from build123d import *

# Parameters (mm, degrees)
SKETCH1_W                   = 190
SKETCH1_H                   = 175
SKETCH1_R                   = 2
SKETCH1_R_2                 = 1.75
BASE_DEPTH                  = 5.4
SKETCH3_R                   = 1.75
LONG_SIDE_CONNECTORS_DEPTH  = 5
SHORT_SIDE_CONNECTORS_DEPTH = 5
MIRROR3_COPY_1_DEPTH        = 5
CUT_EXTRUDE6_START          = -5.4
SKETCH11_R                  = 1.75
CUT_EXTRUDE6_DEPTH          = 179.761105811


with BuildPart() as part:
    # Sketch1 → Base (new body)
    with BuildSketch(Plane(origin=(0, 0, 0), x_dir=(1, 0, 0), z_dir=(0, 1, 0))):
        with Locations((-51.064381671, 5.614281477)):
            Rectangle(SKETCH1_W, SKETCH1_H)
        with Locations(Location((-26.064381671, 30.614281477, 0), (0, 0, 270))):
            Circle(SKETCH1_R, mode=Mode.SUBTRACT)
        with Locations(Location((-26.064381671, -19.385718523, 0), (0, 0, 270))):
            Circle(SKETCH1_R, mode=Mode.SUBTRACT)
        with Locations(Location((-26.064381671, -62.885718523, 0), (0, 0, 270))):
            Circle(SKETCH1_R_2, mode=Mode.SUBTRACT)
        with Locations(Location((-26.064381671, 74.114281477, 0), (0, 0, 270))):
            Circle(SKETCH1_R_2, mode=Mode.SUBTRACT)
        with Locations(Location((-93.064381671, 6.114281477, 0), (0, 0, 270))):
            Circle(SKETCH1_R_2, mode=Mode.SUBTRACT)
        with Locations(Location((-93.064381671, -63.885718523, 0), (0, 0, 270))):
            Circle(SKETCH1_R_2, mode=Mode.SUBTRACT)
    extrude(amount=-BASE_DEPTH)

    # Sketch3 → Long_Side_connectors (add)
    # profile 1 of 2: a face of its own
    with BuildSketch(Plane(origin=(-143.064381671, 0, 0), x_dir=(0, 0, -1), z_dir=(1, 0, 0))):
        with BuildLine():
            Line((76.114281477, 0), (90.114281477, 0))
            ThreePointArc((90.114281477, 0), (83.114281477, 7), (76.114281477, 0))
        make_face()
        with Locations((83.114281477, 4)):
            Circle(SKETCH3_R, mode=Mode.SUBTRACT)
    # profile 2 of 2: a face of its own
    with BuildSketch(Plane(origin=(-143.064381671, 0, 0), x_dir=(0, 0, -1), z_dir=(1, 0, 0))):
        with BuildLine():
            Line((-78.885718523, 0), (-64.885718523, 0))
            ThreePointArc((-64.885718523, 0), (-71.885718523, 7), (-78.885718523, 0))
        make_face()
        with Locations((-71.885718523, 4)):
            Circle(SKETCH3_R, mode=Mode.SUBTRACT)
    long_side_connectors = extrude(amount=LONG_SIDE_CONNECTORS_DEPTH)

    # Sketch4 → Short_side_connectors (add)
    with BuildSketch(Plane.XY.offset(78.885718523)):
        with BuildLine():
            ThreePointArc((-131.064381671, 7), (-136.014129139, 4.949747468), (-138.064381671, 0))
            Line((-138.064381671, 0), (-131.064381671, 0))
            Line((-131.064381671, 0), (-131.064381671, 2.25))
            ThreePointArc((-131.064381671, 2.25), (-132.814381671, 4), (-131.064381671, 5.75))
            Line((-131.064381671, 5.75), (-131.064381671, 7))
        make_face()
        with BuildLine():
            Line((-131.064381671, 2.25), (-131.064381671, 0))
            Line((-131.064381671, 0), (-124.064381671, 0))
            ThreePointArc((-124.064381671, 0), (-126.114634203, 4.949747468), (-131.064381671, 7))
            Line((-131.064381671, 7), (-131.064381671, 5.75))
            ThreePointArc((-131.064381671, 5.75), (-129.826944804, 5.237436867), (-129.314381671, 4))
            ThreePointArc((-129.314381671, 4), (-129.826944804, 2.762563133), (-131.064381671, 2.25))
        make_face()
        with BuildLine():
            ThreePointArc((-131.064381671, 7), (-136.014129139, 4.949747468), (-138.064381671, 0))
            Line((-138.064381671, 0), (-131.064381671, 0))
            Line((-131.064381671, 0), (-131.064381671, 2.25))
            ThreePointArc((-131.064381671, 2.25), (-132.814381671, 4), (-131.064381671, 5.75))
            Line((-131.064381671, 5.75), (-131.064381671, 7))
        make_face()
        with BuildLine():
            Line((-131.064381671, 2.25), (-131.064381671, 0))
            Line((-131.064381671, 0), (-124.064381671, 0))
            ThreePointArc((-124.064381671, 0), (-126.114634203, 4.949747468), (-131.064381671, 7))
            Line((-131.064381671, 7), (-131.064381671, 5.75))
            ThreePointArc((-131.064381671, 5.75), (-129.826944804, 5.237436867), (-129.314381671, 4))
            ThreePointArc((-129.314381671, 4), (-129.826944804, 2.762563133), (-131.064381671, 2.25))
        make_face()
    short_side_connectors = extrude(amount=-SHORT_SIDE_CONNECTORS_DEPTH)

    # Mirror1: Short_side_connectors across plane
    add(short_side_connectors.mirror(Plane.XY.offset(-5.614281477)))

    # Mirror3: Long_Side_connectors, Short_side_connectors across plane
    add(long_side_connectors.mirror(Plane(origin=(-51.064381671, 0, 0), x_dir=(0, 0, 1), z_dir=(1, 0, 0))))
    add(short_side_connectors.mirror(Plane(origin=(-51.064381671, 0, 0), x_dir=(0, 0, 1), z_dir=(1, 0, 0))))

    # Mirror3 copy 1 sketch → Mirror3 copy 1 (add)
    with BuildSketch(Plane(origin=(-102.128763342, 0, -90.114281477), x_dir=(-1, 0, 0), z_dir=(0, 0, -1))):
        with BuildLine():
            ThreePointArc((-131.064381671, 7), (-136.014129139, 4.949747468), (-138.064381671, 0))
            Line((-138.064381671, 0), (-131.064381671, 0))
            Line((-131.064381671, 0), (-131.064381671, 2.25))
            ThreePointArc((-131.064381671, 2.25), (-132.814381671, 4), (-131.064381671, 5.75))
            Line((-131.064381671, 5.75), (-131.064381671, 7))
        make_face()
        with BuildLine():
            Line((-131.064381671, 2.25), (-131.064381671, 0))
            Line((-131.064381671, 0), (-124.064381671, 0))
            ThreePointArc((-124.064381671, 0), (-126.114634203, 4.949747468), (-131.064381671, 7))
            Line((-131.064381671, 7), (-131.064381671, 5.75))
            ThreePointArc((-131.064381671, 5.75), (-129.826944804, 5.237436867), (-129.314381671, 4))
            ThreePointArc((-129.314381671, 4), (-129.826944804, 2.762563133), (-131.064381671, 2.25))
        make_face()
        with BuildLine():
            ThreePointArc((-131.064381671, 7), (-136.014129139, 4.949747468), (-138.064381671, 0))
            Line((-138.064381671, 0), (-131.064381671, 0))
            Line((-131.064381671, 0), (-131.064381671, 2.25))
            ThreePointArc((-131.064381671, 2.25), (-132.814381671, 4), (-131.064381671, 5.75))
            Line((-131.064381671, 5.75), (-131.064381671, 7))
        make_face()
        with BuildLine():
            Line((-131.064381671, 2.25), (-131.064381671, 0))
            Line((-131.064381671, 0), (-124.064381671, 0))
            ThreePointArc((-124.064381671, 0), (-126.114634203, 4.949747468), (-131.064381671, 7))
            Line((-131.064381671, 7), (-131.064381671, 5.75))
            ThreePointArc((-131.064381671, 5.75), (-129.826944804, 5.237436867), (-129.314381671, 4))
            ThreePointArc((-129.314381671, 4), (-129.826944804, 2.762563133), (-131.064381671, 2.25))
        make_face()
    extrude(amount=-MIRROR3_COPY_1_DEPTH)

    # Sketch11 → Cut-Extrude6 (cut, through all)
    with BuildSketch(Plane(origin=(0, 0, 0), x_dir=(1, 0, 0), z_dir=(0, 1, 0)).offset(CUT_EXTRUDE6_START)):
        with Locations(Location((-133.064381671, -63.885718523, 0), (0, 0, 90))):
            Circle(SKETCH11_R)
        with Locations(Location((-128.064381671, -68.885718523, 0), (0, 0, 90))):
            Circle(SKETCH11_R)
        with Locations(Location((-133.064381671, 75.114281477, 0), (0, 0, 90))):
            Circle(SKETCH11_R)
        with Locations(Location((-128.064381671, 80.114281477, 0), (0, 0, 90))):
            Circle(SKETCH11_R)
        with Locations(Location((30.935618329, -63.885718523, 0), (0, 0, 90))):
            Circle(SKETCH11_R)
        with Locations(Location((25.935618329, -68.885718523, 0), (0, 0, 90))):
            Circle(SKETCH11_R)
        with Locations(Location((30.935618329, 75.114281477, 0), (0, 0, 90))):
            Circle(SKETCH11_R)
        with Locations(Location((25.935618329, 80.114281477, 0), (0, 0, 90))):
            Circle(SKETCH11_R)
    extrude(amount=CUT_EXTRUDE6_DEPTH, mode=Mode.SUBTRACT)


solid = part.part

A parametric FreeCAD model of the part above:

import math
import FreeCAD as App
import Part
import Sketcher
from FreeCAD import Vector
Q = App.Units.Quantity

doc = App.newDocument("Part")
params = doc.addObject("Spreadsheet::Sheet", "Params")
for row, (alias, value) in enumerate([
    ("sketch1_diameter", "4 mm"),
    ("sketch1_diameter2", "3.5 mm"),
    ("sketch1_width", "190 mm"),
    ("sketch1_height", "175 mm"),
    ("pad1_length", "5.4 mm"),
    ("sketch2_radius", "7 mm"),
    ("sketch2_diameter", "3.5 mm"),
    ("pad2_length", "5 mm"),
    ("sketch3_radius", "7 mm"),
    ("sketch3_radius2", "1.75 mm"),
    ("pad3_length", "5 mm"),
    ("sketch4_radius", "7 mm"),
    ("sketch4_radius2", "1.75 mm"),
    ("pad4_length", "5 mm"),
    ("sketch5_diameter", "3.5 mm"),
], start=1):
    params.set(f"A{row}", alias)
    params.set(f"B{row}", "=" + value)
    params.setAlias(f"B{row}", alias)

body = doc.addObject("PartDesign::Body", "Body")

# Sketch on XZ plane
sketch1 = body.newObject("Sketcher::SketchObject", "Sketch")
sketch1.AttachmentSupport = (doc.getObject("XZ_Plane"), [""])
sketch1.MapMode = "FlatFace"
sketch1.addGeometry(Part.LineSegment(Vector(-146.1, -93.1, 0), Vector(-146.1, 81.9, 0)), False)
sketch1.addGeometry(Part.LineSegment(Vector(-146.1, 81.9, 0), Vector(43.9, 81.9, 0)), False)
sketch1.addGeometry(Part.LineSegment(Vector(43.9, 81.9, 0), Vector(43.9, -93.1, 0)), False)
sketch1.addGeometry(Part.LineSegment(Vector(43.9, -93.1, 0), Vector(-146.1, -93.1, 0)), False)
sketch1.addGeometry(Part.Circle(Vector(-93.1, 63.9, 0), Vector(0, 0, 1), 1.8), False)
sketch1.addGeometry(Part.Circle(Vector(-26.1, 62.9, 0), Vector(0, 0, 1), 1.8), False)
sketch1.addGeometry(Part.Circle(Vector(-26.1, 19.4, 0), Vector(0, 0, 1), 2), False)
sketch1.addGeometry(Part.Circle(Vector(-93.1, -6.1, 0), Vector(0, 0, 1), 1.8), False)
sketch1.addGeometry(Part.Circle(Vector(-26.1, -30.6, 0), Vector(0, 0, 1), 2), False)
sketch1.addGeometry(Part.Circle(Vector(-26.1, -74.1, 0), Vector(0, 0, 1), 1.8), False)
sketch1.addConstraint(Sketcher.Constraint("Coincident", 0, 2, 1, 1))
sketch1.addConstraint(Sketcher.Constraint("Coincident", 1, 2, 2, 1))
sketch1.addConstraint(Sketcher.Constraint("Coincident", 2, 2, 3, 1))
sketch1.addConstraint(Sketcher.Constraint("Coincident", 3, 2, 0, 1))
sketch1.addConstraint(Sketcher.Constraint("Vertical", 0))
sketch1.addConstraint(Sketcher.Constraint("Horizontal", 1))
sketch1.addConstraint(Sketcher.Constraint("Vertical", 2))
sketch1.addConstraint(Sketcher.Constraint("Horizontal", 3))
sketch1.addConstraint(Sketcher.Constraint("Equal", 4, 5))
sketch1.addConstraint(Sketcher.Constraint("Equal", 5, 7))
sketch1.addConstraint(Sketcher.Constraint("Equal", 6, 8))
sketch1.addConstraint(Sketcher.Constraint("Equal", 7, 9))
sketch1.addConstraint(Sketcher.Constraint("Vertical", 5, 3, 6, 3))
sketch1.addConstraint(Sketcher.Constraint("Vertical", 4, 3, 7, 3))
sketch1.addConstraint(Sketcher.Constraint("Vertical", 6, 3, 8, 3))
sketch1.addConstraint(Sketcher.Constraint("Vertical", 8, 3, 9, 3))
sketch1.addConstraint(Sketcher.Constraint("Diameter", 6, Q("4 mm")))
sketch1.addConstraint(Sketcher.Constraint("Diameter", 4, Q("3.5 mm")))
sketch1.addConstraint(Sketcher.Constraint("DistanceX", 1, 1, 1, 2, Q("190 mm")))
sketch1.addConstraint(Sketcher.Constraint("DistanceY", 0, 1, 0, 2, Q("175 mm")))
sketch1.addConstraint(Sketcher.Constraint("DistanceX", 4, 3, 5, 3, Q("67 mm")))
sketch1.addConstraint(Sketcher.Constraint("DistanceY", 5, 3, 4, 3, Q("1 mm")))
sketch1.addConstraint(Sketcher.Constraint("DistanceY", 7, 3, 4, 3, Q("70 mm")))
sketch1.addConstraint(Sketcher.Constraint("DistanceY", 8, 3, 6, 3, Q("50 mm")))
sketch1.addConstraint(Sketcher.Constraint("DistanceY", 9, 3, 7, 3, Q("68 mm")))
sketch1.addConstraint(Sketcher.Constraint("DistanceX", 0, 2, 4, 3, Q("53 mm")))
sketch1.addConstraint(Sketcher.Constraint("DistanceY", 4, 3, 0, 2, Q("18 mm")))
sketch1.addConstraint(Sketcher.Constraint("DistanceY", 6, 3, 5, 3, Q("43.5 mm")))
sketch1.addConstraint(Sketcher.Constraint("DistanceX", 4, 3, -1, 1, Q("93.064382 mm")))
sketch1.addConstraint(Sketcher.Constraint("DistanceY", -1, 1, 4, 3, Q("63.885719 mm")))
sketch1.setExpression("Constraints[16]", "Params.sketch1_diameter")
sketch1.setExpression("Constraints[17]", "Params.sketch1_diameter2")
sketch1.setExpression("Constraints[18]", "Params.sketch1_width")
sketch1.setExpression("Constraints[19]", "Params.sketch1_height")
pad1 = body.newObject("PartDesign::Pad", "Pad")
pad1.Profile = sketch1
pad1.setExpression("Length", "Params.pad1_length")

# Sketch on YZ plane
sketch2 = body.newObject("Sketcher::SketchObject", "Sketch001")
sketch2.AttachmentSupport = (doc.getObject("YZ_Plane"), [""])
sketch2.MapMode = "FlatFace"
sketch2.AttachmentOffset = App.Placement(Vector(0, 0, -143.064382), App.Rotation())
sketch2.addGeometry(Part.LineSegment(Vector(0, -76.1, 0), Vector(0, -90.1, 0)), False)
sketch2.addGeometry(Part.ArcOfCircle(Part.Circle(Vector(0, -83.1, 0), Vector(0, 0, 1), 7), math.radians(-90), math.radians(90)), False)
sketch2.addGeometry(Part.Circle(Vector(4, -83.1, 0), Vector(0, 0, 1), 1.8), False)
sketch2.addGeometry(Part.LineSegment(Vector(0, 78.9, 0), Vector(0, 64.9, 0)), False)
sketch2.addGeometry(Part.ArcOfCircle(Part.Circle(Vector(0, 71.9, 0), Vector(0, 0, 1), 7), math.radians(-90), math.radians(90)), False)
sketch2.addGeometry(Part.Circle(Vector(4, 71.9, 0), Vector(0, 0, 1), 1.8), False)
sketch2.addConstraint(Sketcher.Constraint("Coincident", 0, 1, 1, 2))
sketch2.addConstraint(Sketcher.Constraint("Coincident", 1, 1, 0, 2))
sketch2.addConstraint(Sketcher.Constraint("Coincident", 3, 1, 4, 2))
sketch2.addConstraint(Sketcher.Constraint("Coincident", 4, 1, 3, 2))
sketch2.addConstraint(Sketcher.Constraint("Vertical", 0))
sketch2.addConstraint(Sketcher.Constraint("Vertical", 3))
sketch2.addConstraint(Sketcher.Constraint("Equal", 1, 4))
sketch2.addConstraint(Sketcher.Constraint("Equal", 2, 5))
sketch2.addConstraint(Sketcher.Constraint("PointOnObject", 1, 3, -2))
sketch2.addConstraint(Sketcher.Constraint("PointOnObject", 4, 3, -2))
sketch2.addConstraint(Sketcher.Constraint("PointOnObject", 0, 1, -2))
sketch2.addConstraint(Sketcher.Constraint("PointOnObject", 3, 1, -2))
sketch2.addConstraint(Sketcher.Constraint("Horizontal", 1, 3, 2, 3))
sketch2.addConstraint(Sketcher.Constraint("Horizontal", 4, 3, 5, 3))
sketch2.addConstraint(Sketcher.Constraint("Vertical", 2, 3, 5, 3))
sketch2.addConstraint(Sketcher.Constraint("Radius", 1, Q("7 mm")))
sketch2.addConstraint(Sketcher.Constraint("Diameter", 2, Q("3.5 mm")))
sketch2.addConstraint(Sketcher.Constraint("DistanceX", -1, 1, 2, 3, Q("4 mm")))
sketch2.addConstraint(Sketcher.Constraint("DistanceY", 1, 3, 4, 3, Q("155 mm")))
sketch2.addConstraint(Sketcher.Constraint("DistanceY", 1, 3, -1, 1, Q("83.114281 mm")))
sketch2.setExpression("Constraints[15]", "Params.sketch2_radius")
sketch2.setExpression("Constraints[16]", "Params.sketch2_diameter")
pad2 = body.newObject("PartDesign::Pad", "Pad001")
pad2.Profile = sketch2
pad2.setExpression("Length", "Params.pad2_length")

# Sketch on XY plane
sketch3 = body.newObject("Sketcher::SketchObject", "Sketch002")
sketch3.AttachmentSupport = (doc.getObject("XY_Plane"), [""])
sketch3.MapMode = "FlatFace"
sketch3.AttachmentOffset = App.Placement(Vector(0, 0, 78.885719), App.Rotation())
sketch3.addGeometry(Part.LineSegment(Vector(-138.1, 0, 0), Vector(-124.1, 0, 0)), False)
sketch3.addGeometry(Part.ArcOfCircle(Part.Circle(Vector(-131.1, 0, 0), Vector(0, 0, 1), 7), math.radians(0), math.radians(90)), False)
sketch3.addGeometry(Part.ArcOfCircle(Part.Circle(Vector(-131.1, 0, 0), Vector(0, 0, 1), 7), math.radians(90), math.radians(180)), False)
sketch3.addGeometry(Part.ArcOfCircle(Part.Circle(Vector(-131.1, 4, 0), Vector(0, 0, 1), 1.8), math.radians(90), math.radians(270)), False)
sketch3.addGeometry(Part.ArcOfCircle(Part.Circle(Vector(-131.1, 4, 0), Vector(0, 0, 1), 1.8), math.radians(0), math.radians(90)), False)
sketch3.addGeometry(Part.ArcOfCircle(Part.Circle(Vector(-131.1, 4, 0), Vector(0, 0, 1), 1.8), math.radians(-90), math.radians(0)), False)
sketch3.addConstraint(Sketcher.Constraint("Coincident", 0, 2, 1, 1))
sketch3.addConstraint(Sketcher.Constraint("Tangent", 1, 2, 2, 1))
sketch3.addConstraint(Sketcher.Constraint("Coincident", 2, 2, 0, 1))
sketch3.addConstraint(Sketcher.Constraint("Tangent", 3, 1, 4, 2))
sketch3.addConstraint(Sketcher.Constraint("Tangent", 4, 1, 5, 2))
sketch3.addConstraint(Sketcher.Constraint("Tangent", 5, 1, 3, 2))
sketch3.addConstraint(Sketcher.Constraint("Horizontal", 0))
sketch3.addConstraint(Sketcher.Constraint("Equal", 1, 2))
sketch3.addConstraint(Sketcher.Constraint("PointOnObject", 1, 3, -1))
sketch3.addConstraint(Sketcher.Constraint("PointOnObject", 0, 2, -1))
sketch3.addConstraint(Sketcher.Constraint("Horizontal", 5, 3, 4, 1))
sketch3.addConstraint(Sketcher.Constraint("Vertical", 2, 3, 3, 3))
sketch3.addConstraint(Sketcher.Constraint("Vertical", 5, 3, 1, 2))
sketch3.addConstraint(Sketcher.Constraint("Vertical", 1, 2, 3, 1))
sketch3.addConstraint(Sketcher.Constraint("Vertical", 3, 1, 5, 1))
sketch3.addConstraint(Sketcher.Constraint("Radius", 1, Q("7 mm")))
sketch3.addConstraint(Sketcher.Constraint("Radius", 3, Q("1.75 mm")))
sketch3.addConstraint(Sketcher.Constraint("DistanceY", -1, 1, 3, 3, Q("4 mm")))
sketch3.addConstraint(Sketcher.Constraint("DistanceX", 1, 3, -1, 1, Q("131.064382 mm")))
sketch3.setExpression("Constraints[15]", "Params.sketch3_radius")
sketch3.setExpression("Constraints[16]", "Params.sketch3_radius2")
pad3 = body.newObject("PartDesign::Pad", "Pad002")
pad3.Profile = sketch3
pad3.setExpression("Length", "Params.pad3_length")
pad3.Reversed = True
doc.recompute()

datumplane = body.newObject("PartDesign::Plane", "DatumPlane")
datumplane.AttachmentSupport = (doc.getObject("XY_Plane"), [""])
datumplane.MapMode = "FlatFace"
datumplane.AttachmentOffset = App.Placement(Vector(0, 0, -5.614281), App.Rotation())
mirrored = body.newObject("PartDesign::Mirrored", "Mirrored")
mirrored.Originals = [pad3]
mirrored.MirrorPlane = (datumplane, [""])
body.Tip = mirrored
doc.recompute()

datumplane2 = body.newObject("PartDesign::Plane", "DatumPlane001")
datumplane2.AttachmentSupport = (doc.getObject("YZ_Plane"), [""])
datumplane2.MapMode = "FlatFace"
datumplane2.AttachmentOffset = App.Placement(Vector(0, 0, -51.064382), App.Rotation())
mirrored2 = body.newObject("PartDesign::Mirrored", "Mirrored001")
mirrored2.Originals = [pad2, pad3]
mirrored2.MirrorPlane = (datumplane2, [""])
body.Tip = mirrored2

# Sketch on XY plane
sketch4 = body.newObject("Sketcher::SketchObject", "Sketch003")
sketch4.AttachmentSupport = (doc.getObject("XY_Plane"), [""])
sketch4.MapMode = "FlatFace"
sketch4.AttachmentOffset = App.Placement(Vector(0, 0, -90.114281), App.Rotation())
sketch4.addGeometry(Part.LineSegment(Vector(35.9, 0, 0), Vector(21.9, 0, 0)), False)
sketch4.addGeometry(Part.ArcOfCircle(Part.Circle(Vector(28.9, 0, 0), Vector(0, 0, 1), 7), math.radians(90), math.radians(180)), False)
sketch4.addGeometry(Part.ArcOfCircle(Part.Circle(Vector(28.9, 0, 0), Vector(0, 0, 1), 7), math.radians(0), math.radians(90)), False)
sketch4.addGeometry(Part.ArcOfCircle(Part.Circle(Vector(28.9, 4, 0), Vector(0, 0, 1), 1.8), math.radians(-90), math.radians(90)), False)
sketch4.addGeometry(Part.ArcOfCircle(Part.Circle(Vector(28.9, 4, 0), Vector(0, 0, 1), 1.8), math.radians(90), math.radians(180)), False)
sketch4.addGeometry(Part.ArcOfCircle(Part.Circle(Vector(28.9, 4, 0), Vector(0, 0, 1), 1.8), math.radians(180), math.radians(270)), False)
sketch4.addConstraint(Sketcher.Constraint("Coincident", 0, 2, 1, 2))
sketch4.addConstraint(Sketcher.Constraint("Tangent", 1, 1, 2, 2))
sketch4.addConstraint(Sketcher.Constraint("Coincident", 2, 1, 0, 1))
sketch4.addConstraint(Sketcher.Constraint("Tangent", 3, 2, 4, 1))
sketch4.addConstraint(Sketcher.Constraint("Tangent", 4, 2, 5, 1))
sketch4.addConstraint(Sketcher.Constraint("Tangent", 5, 2, 3, 1))
sketch4.addConstraint(Sketcher.Constraint("Horizontal", 0))
sketch4.addConstraint(Sketcher.Constraint("Equal", 1, 2))
sketch4.addConstraint(Sketcher.Constraint("PointOnObject", 1, 3, -1))
sketch4.addConstraint(Sketcher.Constraint("PointOnObject", 0, 2, -1))
sketch4.addConstraint(Sketcher.Constraint("Horizontal", 5, 3, 4, 2))
sketch4.addConstraint(Sketcher.Constraint("Vertical", 2, 3, 3, 3))
sketch4.addConstraint(Sketcher.Constraint("Vertical", 5, 3, 1, 1))
sketch4.addConstraint(Sketcher.Constraint("Vertical", 1, 1, 3, 2))
sketch4.addConstraint(Sketcher.Constraint("Vertical", 3, 2, 5, 2))
sketch4.addConstraint(Sketcher.Constraint("Radius", 1, Q("7 mm")))
sketch4.addConstraint(Sketcher.Constraint("Radius", 3, Q("1.75 mm")))
sketch4.addConstraint(Sketcher.Constraint("DistanceY", -1, 1, 3, 3, Q("4 mm")))
sketch4.addConstraint(Sketcher.Constraint("DistanceX", -1, 1, 1, 3, Q("28.935618 mm")))
sketch4.setExpression("Constraints[15]", "Params.sketch4_radius")
sketch4.setExpression("Constraints[16]", "Params.sketch4_radius2")
pad4 = body.newObject("PartDesign::Pad", "Pad003")
pad4.Profile = sketch4
pad4.setExpression("Length", "Params.pad4_length")

# Sketch on XZ plane
sketch5 = body.newObject("Sketcher::SketchObject", "Sketch004")
sketch5.AttachmentSupport = (doc.getObject("XZ_Plane"), [""])
sketch5.MapMode = "FlatFace"
sketch5.AttachmentOffset = App.Placement(Vector(0, 0, 5.4), App.Rotation())
sketch5.addGeometry(Part.Circle(Vector(-133.1, 63.9, 0), Vector(0, 0, 1), 1.8), False)
sketch5.addGeometry(Part.Circle(Vector(-128.1, 68.9, 0), Vector(0, 0, 1), 1.8), False)
sketch5.addGeometry(Part.Circle(Vector(-133.1, -75.1, 0), Vector(0, 0, 1), 1.8), False)
sketch5.addGeometry(Part.Circle(Vector(-128.1, -80.1, 0), Vector(0, 0, 1), 1.8), False)
sketch5.addGeometry(Part.Circle(Vector(30.9, 63.9, 0), Vector(0, 0, 1), 1.8), False)
sketch5.addGeometry(Part.Circle(Vector(25.9, 68.9, 0), Vector(0, 0, 1), 1.8), False)
sketch5.addGeometry(Part.Circle(Vector(30.9, -75.1, 0), Vector(0, 0, 1), 1.8), False)
sketch5.addGeometry(Part.Circle(Vector(25.9, -80.1, 0), Vector(0, 0, 1), 1.8), False)
sketch5.addConstraint(Sketcher.Constraint("Equal", 0, 1))
sketch5.addConstraint(Sketcher.Constraint("Equal", 1, 2))
sketch5.addConstraint(Sketcher.Constraint("Equal", 2, 3))
sketch5.addConstraint(Sketcher.Constraint("Equal", 3, 4))
sketch5.addConstraint(Sketcher.Constraint("Equal", 4, 5))
sketch5.addConstraint(Sketcher.Constraint("Equal", 5, 6))
sketch5.addConstraint(Sketcher.Constraint("Equal", 6, 7))
sketch5.addConstraint(Sketcher.Constraint("Horizontal", 0, 3, 4, 3))
sketch5.addConstraint(Sketcher.Constraint("Horizontal", 1, 3, 5, 3))
sketch5.addConstraint(Sketcher.Constraint("Horizontal", 2, 3, 6, 3))
sketch5.addConstraint(Sketcher.Constraint("Horizontal", 3, 3, 7, 3))
sketch5.addConstraint(Sketcher.Constraint("Vertical", 0, 3, 2, 3))
sketch5.addConstraint(Sketcher.Constraint("Vertical", 1, 3, 3, 3))
sketch5.addConstraint(Sketcher.Constraint("Vertical", 4, 3, 6, 3))
sketch5.addConstraint(Sketcher.Constraint("Vertical", 5, 3, 7, 3))
sketch5.addConstraint(Sketcher.Constraint("Diameter", 0, Q("3.5 mm")))
sketch5.addConstraint(Sketcher.Constraint("DistanceX", 0, 3, 1, 3, Q("5 mm")))
sketch5.addConstraint(Sketcher.Constraint("DistanceY", 0, 3, 1, 3, Q("5 mm")))
sketch5.addConstraint(Sketcher.Constraint("DistanceY", 2, 3, 0, 3, Q("139 mm")))
sketch5.addConstraint(Sketcher.Constraint("DistanceY", 3, 3, 2, 3, Q("5 mm")))
sketch5.addConstraint(Sketcher.Constraint("DistanceX", 1, 3, 4, 3, Q("159 mm")))
sketch5.addConstraint(Sketcher.Constraint("DistanceX", 5, 3, 4, 3, Q("5 mm")))
sketch5.addConstraint(Sketcher.Constraint("DistanceX", 0, 3, -1, 1, Q("133.064382 mm")))
sketch5.addConstraint(Sketcher.Constraint("DistanceY", -1, 1, 0, 3, Q("63.885719 mm")))
sketch5.setExpression("Constraints[15]", "Params.sketch5_diameter")
pocket1 = body.newObject("PartDesign::Pocket", "Pocket")
pocket1.Profile = sketch5
pocket1.Type = "ThroughAll"

doc.recompute()
